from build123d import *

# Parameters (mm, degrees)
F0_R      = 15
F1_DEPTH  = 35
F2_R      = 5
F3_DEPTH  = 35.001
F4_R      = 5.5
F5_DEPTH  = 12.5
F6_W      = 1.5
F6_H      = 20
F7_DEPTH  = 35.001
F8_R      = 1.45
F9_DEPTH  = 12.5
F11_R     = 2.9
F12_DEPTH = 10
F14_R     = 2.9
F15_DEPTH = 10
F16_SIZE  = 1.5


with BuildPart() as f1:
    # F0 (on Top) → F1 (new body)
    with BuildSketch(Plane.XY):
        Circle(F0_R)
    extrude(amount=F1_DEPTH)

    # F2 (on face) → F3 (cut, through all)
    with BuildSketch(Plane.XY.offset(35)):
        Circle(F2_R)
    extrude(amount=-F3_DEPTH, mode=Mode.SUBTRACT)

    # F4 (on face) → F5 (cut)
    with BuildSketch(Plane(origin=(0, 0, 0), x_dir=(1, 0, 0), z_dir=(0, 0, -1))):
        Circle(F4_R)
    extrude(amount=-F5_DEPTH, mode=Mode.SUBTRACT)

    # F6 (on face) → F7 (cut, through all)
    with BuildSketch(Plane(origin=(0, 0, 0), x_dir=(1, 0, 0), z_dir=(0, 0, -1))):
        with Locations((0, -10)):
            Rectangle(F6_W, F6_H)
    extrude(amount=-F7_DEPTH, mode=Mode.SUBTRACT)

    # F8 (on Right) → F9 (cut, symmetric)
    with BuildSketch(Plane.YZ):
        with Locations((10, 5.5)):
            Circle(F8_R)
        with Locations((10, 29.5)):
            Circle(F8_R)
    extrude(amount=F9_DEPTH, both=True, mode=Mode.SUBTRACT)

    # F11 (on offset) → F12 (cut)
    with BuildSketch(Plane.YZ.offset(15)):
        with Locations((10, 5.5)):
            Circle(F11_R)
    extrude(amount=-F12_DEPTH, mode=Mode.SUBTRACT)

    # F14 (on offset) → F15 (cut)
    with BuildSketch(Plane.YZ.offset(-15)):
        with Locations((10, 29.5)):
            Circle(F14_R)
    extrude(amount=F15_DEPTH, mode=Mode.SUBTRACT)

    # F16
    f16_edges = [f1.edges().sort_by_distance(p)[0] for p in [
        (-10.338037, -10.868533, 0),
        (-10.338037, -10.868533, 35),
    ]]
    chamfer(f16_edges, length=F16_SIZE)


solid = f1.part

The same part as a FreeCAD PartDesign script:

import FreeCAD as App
import Part
import Sketcher

V = App.Vector


def edges_at(feature, points):
    """Names of the edges that pass closest to the given points."""
    edges = feature.Shape.Edges
    near = lambda p: min(range(len(edges)), key=lambda i: edges[i].distToShape(Part.Vertex(*p))[0])
    return sorted({f"Edge{near(p) + 1}" for p in points})

doc = App.newDocument("Part")
body = doc.addObject("PartDesign::Body", "Body")

# Sketch on XY plane
sketch1 = body.newObject("Sketcher::SketchObject", "Sketch")
sketch1.AttachmentSupport = (doc.getObject("XY_Plane"), [""])
sketch1.MapMode = "FlatFace"
sketch1.addGeometry(Part.Circle(V(0, 0, 0), V(0, 0, 1), 15), False)
sketch1.addConstraint(Sketcher.Constraint("Coincident", 0, 3, -1, 1))
sketch1.addConstraint(Sketcher.Constraint("Diameter", 0, 30.0))
pad1 = body.newObject("PartDesign::Pad", "Pad")
pad1.Profile = sketch1
pad1.Length = 35

# Sketch on XY plane
sketch2 = body.newObject("Sketcher::SketchObject", "Sketch001")
sketch2.AttachmentSupport = (doc.getObject("XY_Plane"), [""])
sketch2.MapMode = "FlatFace"
sketch2.AttachmentOffset = App.Placement(V(0, 0, 35), App.Rotation())
sketch2.addGeometry(Part.Circle(V(0, 0, 0), V(0, 0, 1), 5), False)
sketch2.addConstraint(Sketcher.Constraint("Coincident", 0, 3, -1, 1))
sketch2.addConstraint(Sketcher.Constraint("Diameter", 0, 10.0))
pocket1 = body.newObject("PartDesign::Pocket", "Pocket")
pocket1.Profile = sketch2
pocket1.Type = "ThroughAll"

# Sketch on XY plane
sketch3 = body.newObject("Sketcher::SketchObject", "Sketch002")
sketch3.AttachmentSupport = (doc.getObject("XY_Plane"), [""])
sketch3.MapMode = "FlatFace"
sketch3.addGeometry(Part.Circle(V(0, 0, 0), V(0, 0, 1), 6), False)
sketch3.addConstraint(Sketcher.Constraint("Coincident", 0, 3, -1, 1))
sketch3.addConstraint(Sketcher.Constraint("Diameter", 0, 11.0))
pocket2 = body.newObject("PartDesign::Pocket", "Pocket001")
pocket2.Profile = sketch3
pocket2.Length = 12.5
pocket2.Reversed = True

# Sketch on XY plane
sketch4 = body.newObject("Sketcher::SketchObject", "Sketch003")
sketch4.AttachmentSupport = (doc.getObject("XY_Plane"), [""])
sketch4.MapMode = "FlatFace"
sketch4.addGeometry(Part.LineSegment(V(-0.8, 0, 0), V(-0.8, 20, 0)), False)
sketch4.addGeometry(Part.LineSegment(V(-0.8, 20, 0), V(0.8, 20, 0)), False)
sketch4.addGeometry(Part.LineSegment(V(0.8, 20, 0), V(0.8, 0, 0)), False)
sketch4.addGeometry(Part.LineSegment(V(0.8, 0, 0), V(-0.8, 0, 0)), False)
sketch4.addConstraint(Sketcher.Constraint("Coincident", 0, 2, 1, 1))
sketch4.addConstraint(Sketcher.Constraint("Coincident", 1, 2, 2, 1))
sketch4.addConstraint(Sketcher.Constraint("Coincident", 2, 2, 3, 1))
sketch4.addConstraint(Sketcher.Constraint("Coincident", 3, 2, 0, 1))
sketch4.addConstraint(Sketcher.Constraint("Vertical", 0))
sketch4.addConstraint(Sketcher.Constraint("Horizontal", 1))
sketch4.addConstraint(Sketcher.Constraint("Vertical", 2))
sketch4.addConstraint(Sketcher.Constraint("Horizontal", 3))
sketch4.addConstraint(Sketcher.Constraint("Symmetric", 2, 2, 3, 2, -1, 1))
sketch4.addConstraint(Sketcher.Constraint("DistanceY", 0, 1, 0, 2, 20.0))
sketch4.addConstraint(Sketcher.Constraint("DistanceX", 1, 1, 1, 2, 1.5))
pocket3 = body.newObject("PartDesign::Pocket", "Pocket002")
pocket3.Profile = sketch4
pocket3.Type = "ThroughAll"
pocket3.Reversed = True

# Sketch on YZ plane
sketch5 = body.newObject("Sketcher::SketchObject", "Sketch004")
sketch5.AttachmentSupport = (doc.getObject("YZ_Plane"), [""])
sketch5.MapMode = "FlatFace"
sketch5.addGeometry(Part.Circle(V(10, 5.5, 0), V(0, 0, 1), 1.4), False)
sketch5.addGeometry(Part.Circle(V(10, 29.5, 0), V(0, 0, 1), 1.4), False)
sketch5.addConstraint(Sketcher.Constraint("Equal", 0, 1))
sketch5.addConstraint(Sketcher.Constraint("Vertical", 0, 3, 1, 3))
sketch5.addConstraint(Sketcher.Constraint("Diameter", 0, 2.9))
sketch5.addConstraint(Sketcher.Constraint("DistanceX", -1, 1, 0, 3, 10.0))
sketch5.addConstraint(Sketcher.Constraint("DistanceY", 0, 3, 1, 3, 24.0))
sketch5.addConstraint(Sketcher.Constraint("DistanceY", -1, 1, 0, 3, 5.5))
pocket4 = body.newObject("PartDesign::Pocket", "Pocket003")
pocket4.Profile = sketch5
pocket4.Length = 25
pocket4.Midplane = True

# Sketch on YZ plane
sketch6 = body.newObject("Sketcher::SketchObject", "Sketch005")
sketch6.AttachmentSupport = (doc.getObject("YZ_Plane"), [""])
sketch6.MapMode = "FlatFace"
sketch6.AttachmentOffset = App.Placement(V(0, 0, 15), App.Rotation())
sketch6.addGeometry(Part.Circle(V(10, 5.5, 0), V(0, 0, 1), 2.9), False)
sketch6.addConstraint(Sketcher.Constraint("Diameter", 0, 5.8))
sketch6.addConstraint(Sketcher.Constraint("DistanceX", -1, 1, 0, 3, 10.0))
sketch6.addConstraint(Sketcher.Constraint("DistanceY", -1, 1, 0, 3, 5.5))
pocket5 = body.newObject("PartDesign::Pocket", "Pocket004")
pocket5.Profile = sketch6
pocket5.Length = 10

# Sketch on YZ plane
sketch7 = body.newObject("Sketcher::SketchObject", "Sketch006")
sketch7.AttachmentSupport = (doc.getObject("YZ_Plane"), [""])
sketch7.MapMode = "FlatFace"
sketch7.AttachmentOffset = App.Placement(V(0, 0, -15), App.Rotation())
sketch7.addGeometry(Part.Circle(V(10, 29.5, 0), V(0, 0, 1), 2.9), False)
sketch7.addConstraint(Sketcher.Constraint("Diameter", 0, 5.8))
sketch7.addConstraint(Sketcher.Constraint("DistanceX", -1, 1, 0, 3, 10.0))
sketch7.addConstraint(Sketcher.Constraint("DistanceY", -1, 1, 0, 3, 29.5))
pocket6 = body.newObject("PartDesign::Pocket", "Pocket005")
pocket6.Profile = sketch7
pocket6.Length = 10
pocket6.Reversed = True
doc.recompute()

chamfer = body.newObject("PartDesign::Chamfer", "Chamfer")
chamfer.Base = (pocket6, edges_at(pocket6, [(-10.338, -10.869, 0), (-10.338, -10.869, 35)]))
chamfer.Size = 1.5

doc.recompute()
